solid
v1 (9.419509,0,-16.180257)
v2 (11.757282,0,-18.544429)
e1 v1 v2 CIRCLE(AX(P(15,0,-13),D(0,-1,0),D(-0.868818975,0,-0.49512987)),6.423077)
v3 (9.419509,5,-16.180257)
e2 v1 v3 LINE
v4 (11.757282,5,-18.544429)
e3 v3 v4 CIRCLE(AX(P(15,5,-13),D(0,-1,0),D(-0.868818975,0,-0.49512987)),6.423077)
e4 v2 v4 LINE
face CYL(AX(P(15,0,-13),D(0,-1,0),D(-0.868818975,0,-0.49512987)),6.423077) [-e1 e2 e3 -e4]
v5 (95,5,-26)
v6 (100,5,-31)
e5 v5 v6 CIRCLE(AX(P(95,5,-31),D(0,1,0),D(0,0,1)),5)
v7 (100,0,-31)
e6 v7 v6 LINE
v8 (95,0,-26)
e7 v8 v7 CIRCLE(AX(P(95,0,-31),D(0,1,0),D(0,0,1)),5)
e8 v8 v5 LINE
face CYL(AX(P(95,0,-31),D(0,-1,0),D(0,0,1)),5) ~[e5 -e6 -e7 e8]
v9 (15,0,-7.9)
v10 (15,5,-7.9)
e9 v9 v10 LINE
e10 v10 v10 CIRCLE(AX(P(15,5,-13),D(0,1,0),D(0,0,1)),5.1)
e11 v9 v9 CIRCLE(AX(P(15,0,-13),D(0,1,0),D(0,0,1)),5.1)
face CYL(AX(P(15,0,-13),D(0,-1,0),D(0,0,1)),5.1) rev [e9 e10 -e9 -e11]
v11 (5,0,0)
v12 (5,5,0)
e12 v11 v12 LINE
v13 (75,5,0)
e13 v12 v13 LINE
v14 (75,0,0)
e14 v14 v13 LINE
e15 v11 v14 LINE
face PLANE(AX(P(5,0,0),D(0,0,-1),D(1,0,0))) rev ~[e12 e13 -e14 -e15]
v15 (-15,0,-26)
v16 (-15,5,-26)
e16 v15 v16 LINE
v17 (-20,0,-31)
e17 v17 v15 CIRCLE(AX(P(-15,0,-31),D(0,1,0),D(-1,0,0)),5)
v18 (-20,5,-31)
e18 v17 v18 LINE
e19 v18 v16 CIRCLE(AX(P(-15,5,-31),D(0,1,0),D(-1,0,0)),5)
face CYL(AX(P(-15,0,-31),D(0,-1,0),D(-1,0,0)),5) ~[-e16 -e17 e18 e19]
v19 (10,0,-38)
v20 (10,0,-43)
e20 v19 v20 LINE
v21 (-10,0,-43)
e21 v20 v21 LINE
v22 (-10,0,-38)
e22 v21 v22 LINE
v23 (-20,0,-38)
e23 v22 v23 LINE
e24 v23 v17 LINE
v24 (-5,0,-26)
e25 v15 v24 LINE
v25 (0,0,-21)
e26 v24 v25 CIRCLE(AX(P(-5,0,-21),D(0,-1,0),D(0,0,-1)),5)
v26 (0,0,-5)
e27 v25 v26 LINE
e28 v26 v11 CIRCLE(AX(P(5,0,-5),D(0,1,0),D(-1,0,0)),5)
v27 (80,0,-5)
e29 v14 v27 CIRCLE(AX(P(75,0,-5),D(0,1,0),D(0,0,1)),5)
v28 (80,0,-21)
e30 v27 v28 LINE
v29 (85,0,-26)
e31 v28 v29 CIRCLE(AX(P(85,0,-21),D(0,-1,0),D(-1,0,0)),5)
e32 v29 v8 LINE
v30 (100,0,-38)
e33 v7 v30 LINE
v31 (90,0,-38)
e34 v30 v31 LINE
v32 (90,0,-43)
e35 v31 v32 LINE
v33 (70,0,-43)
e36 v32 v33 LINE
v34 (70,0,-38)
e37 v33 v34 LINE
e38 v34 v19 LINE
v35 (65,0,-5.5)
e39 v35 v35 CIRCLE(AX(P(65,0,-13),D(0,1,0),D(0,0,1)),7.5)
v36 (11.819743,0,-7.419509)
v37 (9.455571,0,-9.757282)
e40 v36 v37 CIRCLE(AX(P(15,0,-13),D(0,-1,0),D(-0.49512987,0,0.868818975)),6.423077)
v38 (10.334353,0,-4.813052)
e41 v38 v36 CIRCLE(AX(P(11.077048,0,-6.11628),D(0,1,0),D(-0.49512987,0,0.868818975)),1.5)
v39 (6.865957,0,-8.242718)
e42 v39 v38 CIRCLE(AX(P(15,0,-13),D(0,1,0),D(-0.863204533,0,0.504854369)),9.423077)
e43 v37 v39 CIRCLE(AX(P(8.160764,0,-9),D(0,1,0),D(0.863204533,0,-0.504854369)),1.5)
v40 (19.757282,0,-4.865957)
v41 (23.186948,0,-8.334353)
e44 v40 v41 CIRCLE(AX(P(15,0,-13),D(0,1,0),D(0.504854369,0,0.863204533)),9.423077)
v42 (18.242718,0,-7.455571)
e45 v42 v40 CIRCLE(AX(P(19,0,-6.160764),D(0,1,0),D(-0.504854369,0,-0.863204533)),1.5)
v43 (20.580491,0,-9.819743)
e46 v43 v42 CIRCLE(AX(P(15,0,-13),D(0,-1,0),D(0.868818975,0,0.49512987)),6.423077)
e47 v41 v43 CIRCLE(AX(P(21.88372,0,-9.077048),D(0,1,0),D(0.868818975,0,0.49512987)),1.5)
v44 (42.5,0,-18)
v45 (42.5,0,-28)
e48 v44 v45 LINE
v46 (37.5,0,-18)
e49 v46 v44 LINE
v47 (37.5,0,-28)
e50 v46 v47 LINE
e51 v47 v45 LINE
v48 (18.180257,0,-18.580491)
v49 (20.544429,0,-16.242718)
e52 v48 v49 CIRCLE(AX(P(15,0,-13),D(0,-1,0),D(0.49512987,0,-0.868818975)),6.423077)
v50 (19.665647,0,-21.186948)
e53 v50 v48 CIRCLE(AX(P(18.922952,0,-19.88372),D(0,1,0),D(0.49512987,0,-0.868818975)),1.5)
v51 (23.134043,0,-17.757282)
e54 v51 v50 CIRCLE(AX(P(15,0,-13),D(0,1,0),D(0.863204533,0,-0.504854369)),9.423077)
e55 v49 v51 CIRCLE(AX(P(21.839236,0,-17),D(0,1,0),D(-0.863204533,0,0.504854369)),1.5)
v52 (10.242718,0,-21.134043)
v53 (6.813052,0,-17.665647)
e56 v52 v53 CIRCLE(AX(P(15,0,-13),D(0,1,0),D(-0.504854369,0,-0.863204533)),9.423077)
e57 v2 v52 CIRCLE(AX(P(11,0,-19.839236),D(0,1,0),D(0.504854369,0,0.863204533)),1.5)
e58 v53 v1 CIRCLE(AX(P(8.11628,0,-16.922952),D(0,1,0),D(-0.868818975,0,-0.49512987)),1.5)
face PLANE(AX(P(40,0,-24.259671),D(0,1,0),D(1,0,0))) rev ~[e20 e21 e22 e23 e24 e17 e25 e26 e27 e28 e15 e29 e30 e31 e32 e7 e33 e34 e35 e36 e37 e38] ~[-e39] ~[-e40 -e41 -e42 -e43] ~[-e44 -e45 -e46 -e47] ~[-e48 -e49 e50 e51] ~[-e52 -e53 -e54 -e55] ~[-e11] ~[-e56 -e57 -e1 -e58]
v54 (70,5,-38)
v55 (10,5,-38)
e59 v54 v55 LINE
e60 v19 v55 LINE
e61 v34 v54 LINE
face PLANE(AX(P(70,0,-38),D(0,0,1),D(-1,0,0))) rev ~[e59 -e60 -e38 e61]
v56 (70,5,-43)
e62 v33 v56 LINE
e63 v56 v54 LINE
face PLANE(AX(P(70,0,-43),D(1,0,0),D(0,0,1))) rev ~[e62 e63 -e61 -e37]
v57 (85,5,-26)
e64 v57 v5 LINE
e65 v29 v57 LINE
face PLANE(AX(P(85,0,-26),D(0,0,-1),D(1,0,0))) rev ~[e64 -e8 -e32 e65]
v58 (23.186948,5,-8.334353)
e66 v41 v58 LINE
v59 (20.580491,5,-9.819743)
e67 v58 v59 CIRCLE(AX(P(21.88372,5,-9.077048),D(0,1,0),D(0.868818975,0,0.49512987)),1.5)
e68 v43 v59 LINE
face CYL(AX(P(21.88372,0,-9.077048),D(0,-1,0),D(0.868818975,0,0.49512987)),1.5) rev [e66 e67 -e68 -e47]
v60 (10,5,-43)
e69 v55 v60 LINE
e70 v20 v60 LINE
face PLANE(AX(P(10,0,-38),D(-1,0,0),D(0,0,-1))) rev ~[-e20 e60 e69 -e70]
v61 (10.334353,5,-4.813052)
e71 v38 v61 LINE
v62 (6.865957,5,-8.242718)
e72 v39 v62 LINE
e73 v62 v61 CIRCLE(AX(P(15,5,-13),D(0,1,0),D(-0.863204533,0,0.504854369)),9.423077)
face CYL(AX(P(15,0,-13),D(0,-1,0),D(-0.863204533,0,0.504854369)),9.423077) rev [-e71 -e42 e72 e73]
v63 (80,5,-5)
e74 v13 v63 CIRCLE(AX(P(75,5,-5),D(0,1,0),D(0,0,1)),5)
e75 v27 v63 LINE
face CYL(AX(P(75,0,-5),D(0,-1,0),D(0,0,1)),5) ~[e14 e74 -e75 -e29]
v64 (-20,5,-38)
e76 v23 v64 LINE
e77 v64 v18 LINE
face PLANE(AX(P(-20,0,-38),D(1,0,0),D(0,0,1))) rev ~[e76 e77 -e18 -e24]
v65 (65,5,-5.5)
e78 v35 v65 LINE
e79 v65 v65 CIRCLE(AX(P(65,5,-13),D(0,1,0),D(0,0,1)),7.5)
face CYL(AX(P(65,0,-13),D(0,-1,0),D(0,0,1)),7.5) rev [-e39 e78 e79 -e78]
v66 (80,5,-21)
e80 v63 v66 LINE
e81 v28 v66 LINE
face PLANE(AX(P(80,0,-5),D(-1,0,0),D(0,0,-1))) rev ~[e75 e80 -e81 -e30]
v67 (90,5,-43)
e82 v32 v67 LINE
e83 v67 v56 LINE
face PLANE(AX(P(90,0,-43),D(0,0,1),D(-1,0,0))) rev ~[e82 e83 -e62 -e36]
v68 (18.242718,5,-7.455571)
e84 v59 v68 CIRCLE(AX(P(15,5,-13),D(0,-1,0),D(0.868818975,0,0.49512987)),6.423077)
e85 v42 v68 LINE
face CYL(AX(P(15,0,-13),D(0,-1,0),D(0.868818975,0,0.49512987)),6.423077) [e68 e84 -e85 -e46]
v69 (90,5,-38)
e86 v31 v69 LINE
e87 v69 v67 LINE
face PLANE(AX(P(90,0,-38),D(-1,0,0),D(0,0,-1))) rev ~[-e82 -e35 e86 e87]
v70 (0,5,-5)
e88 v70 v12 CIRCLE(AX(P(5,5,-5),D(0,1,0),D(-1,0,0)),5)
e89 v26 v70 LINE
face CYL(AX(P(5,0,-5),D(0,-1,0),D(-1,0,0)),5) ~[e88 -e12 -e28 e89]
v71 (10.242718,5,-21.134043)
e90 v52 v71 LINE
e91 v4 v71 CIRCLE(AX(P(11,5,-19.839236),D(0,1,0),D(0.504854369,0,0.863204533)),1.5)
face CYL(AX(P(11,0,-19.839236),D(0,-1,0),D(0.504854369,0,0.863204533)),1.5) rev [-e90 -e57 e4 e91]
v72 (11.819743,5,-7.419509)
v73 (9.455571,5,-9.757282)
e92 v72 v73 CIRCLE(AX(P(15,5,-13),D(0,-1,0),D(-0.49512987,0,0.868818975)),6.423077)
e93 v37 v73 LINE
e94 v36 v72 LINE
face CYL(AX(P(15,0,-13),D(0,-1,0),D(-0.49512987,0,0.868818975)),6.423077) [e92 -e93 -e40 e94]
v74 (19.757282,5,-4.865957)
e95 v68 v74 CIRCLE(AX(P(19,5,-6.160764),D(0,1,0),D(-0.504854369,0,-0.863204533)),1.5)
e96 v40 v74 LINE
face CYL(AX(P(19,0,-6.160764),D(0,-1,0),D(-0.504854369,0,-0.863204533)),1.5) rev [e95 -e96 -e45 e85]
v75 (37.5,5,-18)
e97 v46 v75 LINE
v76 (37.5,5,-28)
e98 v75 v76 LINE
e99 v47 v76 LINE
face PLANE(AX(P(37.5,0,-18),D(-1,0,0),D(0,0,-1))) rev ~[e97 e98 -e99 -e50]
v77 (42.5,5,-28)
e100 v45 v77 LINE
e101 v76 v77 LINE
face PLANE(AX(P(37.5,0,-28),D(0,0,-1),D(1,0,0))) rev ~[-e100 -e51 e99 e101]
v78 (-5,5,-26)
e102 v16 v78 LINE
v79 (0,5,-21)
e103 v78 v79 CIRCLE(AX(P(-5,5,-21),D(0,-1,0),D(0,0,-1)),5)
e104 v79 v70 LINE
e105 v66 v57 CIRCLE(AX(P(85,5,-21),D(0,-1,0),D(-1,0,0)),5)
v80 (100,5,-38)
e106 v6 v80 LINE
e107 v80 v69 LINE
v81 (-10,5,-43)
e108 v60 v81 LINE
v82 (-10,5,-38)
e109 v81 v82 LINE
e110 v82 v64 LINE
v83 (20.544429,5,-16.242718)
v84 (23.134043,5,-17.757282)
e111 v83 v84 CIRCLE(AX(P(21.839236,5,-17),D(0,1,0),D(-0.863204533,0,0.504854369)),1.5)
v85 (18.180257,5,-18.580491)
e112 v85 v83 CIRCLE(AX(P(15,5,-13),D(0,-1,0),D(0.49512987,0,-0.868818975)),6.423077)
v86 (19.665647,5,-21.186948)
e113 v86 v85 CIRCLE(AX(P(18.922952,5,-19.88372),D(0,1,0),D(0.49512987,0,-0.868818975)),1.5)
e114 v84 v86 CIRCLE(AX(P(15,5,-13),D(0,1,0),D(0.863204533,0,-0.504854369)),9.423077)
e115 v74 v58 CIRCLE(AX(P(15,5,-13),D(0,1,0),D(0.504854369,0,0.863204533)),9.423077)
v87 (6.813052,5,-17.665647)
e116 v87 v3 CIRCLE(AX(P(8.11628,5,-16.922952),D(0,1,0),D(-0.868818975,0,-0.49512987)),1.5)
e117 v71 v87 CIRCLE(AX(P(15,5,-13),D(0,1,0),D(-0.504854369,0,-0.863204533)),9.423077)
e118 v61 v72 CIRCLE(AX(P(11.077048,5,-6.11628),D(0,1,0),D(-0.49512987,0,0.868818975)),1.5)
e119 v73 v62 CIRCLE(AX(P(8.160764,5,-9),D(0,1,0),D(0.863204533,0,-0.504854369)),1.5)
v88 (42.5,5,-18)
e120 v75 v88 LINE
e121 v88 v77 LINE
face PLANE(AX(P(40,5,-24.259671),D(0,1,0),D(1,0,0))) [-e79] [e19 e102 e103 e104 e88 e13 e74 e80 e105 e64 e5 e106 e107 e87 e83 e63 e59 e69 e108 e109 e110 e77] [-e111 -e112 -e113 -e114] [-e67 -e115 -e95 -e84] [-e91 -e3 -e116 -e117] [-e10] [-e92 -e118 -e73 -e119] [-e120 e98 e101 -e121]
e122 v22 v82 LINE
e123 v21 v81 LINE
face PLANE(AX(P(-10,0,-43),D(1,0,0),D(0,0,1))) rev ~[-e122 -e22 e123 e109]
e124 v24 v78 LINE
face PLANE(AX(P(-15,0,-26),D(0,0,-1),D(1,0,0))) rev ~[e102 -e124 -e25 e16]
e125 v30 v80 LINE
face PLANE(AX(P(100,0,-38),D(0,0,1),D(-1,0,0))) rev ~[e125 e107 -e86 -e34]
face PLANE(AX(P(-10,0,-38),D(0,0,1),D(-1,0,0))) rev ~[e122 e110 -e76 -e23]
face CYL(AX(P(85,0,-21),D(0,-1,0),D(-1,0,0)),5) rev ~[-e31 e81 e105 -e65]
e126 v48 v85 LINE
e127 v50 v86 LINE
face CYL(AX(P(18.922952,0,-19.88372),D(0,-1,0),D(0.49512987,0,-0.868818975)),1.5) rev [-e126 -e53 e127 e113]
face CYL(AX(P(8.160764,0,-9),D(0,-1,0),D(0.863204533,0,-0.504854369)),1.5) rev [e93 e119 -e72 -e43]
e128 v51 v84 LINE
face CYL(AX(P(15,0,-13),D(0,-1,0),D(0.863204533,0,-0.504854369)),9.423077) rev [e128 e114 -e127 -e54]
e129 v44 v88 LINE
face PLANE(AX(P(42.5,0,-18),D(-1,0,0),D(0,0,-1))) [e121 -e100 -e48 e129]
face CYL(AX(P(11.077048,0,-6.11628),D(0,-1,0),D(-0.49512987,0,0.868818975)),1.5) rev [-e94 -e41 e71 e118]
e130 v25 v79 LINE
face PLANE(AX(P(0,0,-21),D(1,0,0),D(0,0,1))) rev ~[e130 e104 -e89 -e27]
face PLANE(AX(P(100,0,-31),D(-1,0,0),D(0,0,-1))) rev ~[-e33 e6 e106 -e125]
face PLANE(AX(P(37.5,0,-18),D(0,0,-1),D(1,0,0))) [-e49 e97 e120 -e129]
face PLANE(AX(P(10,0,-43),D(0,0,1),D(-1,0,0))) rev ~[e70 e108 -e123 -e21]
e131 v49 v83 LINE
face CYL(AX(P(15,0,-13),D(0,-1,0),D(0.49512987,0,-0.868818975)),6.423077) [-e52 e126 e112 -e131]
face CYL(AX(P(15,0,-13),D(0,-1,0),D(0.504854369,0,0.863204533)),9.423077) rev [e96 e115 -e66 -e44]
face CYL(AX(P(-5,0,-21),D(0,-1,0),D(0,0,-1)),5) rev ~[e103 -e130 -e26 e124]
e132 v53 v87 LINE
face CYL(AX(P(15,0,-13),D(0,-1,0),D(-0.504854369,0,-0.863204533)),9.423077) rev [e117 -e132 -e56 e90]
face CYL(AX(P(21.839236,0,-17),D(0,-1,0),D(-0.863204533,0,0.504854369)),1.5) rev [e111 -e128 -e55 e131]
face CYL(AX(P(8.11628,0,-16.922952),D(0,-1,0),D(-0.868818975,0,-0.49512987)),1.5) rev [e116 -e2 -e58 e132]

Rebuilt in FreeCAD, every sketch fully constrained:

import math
import FreeCAD as App
import Part
import Sketcher
Q = App.Units.Quantity


def add_polygon(sketch, points):
    """Adds a closed chain of lines whose ends are joined by coincident constraints."""
    first, n = sketch.GeometryCount, len(points)
    for a, b in zip(points, points[1:] + points[:1]):
        sketch.addGeometry(Part.LineSegment(App.Vector(*a, 0), App.Vector(*b, 0)), False)
    for i in range(n):
        sketch.addConstraint(Sketcher.Constraint("Coincident", first + i, 2, first + (i + 1) % n, 1))

doc = App.newDocument("Part")
body = doc.addObject("PartDesign::Body", "Body")

# Sketch on XZ plane
sketch1 = body.newObject("Sketcher::SketchObject", "Sketch")
sketch1.AttachmentSupport = (doc.getObject("XZ_Plane"), [""])
sketch1.MapMode = "FlatFace"
sketch1.addGeometry(Part.LineSegment(App.Vector(5, 0, 0), App.Vector(75, 0, 0)), False)  # 0
sketch1.addGeometry(Part.ArcOfCircle(Part.Circle(App.Vector(75, -5, 0), App.Vector(0, 0, 1), 5), math.radians(0), math.radians(90)), False)  # 1
sketch1.addGeometry(Part.LineSegment(App.Vector(80, -5, 0), App.Vector(80, -21, 0)), False)  # 2
sketch1.addGeometry(Part.ArcOfCircle(Part.Circle(App.Vector(85, -21, 0), App.Vector(0, 0, 1), 5), math.radians(180), math.radians(270)), False)  # 3
sketch1.addGeometry(Part.LineSegment(App.Vector(85, -26, 0), App.Vector(95, -26, 0)), False)  # 4
sketch1.addGeometry(Part.ArcOfCircle(Part.Circle(App.Vector(95, -31, 0), App.Vector(0, 0, 1), 5), math.radians(0), math.radians(90)), False)  # 5
sketch1.addGeometry(Part.LineSegment(App.Vector(100, -31, 0), App.Vector(100, -38, 0)), False)  # 6
sketch1.addGeometry(Part.LineSegment(App.Vector(100, -38, 0), App.Vector(90, -38, 0)), False)  # 7
sketch1.addGeometry(Part.LineSegment(App.Vector(90, -38, 0), App.Vector(90, -43, 0)), False)  # 8
sketch1.addGeometry(Part.LineSegment(App.Vector(90, -43, 0), App.Vector(70, -43, 0)), False)  # 9
sketch1.addGeometry(Part.LineSegment(App.Vector(70, -43, 0), App.Vector(70, -38, 0)), False)  # 10
sketch1.addGeometry(Part.LineSegment(App.Vector(70, -38, 0), App.Vector(10, -38, 0)), False)  # 11
sketch1.addGeometry(Part.LineSegment(App.Vector(10, -38, 0), App.Vector(10, -43, 0)), False)  # 12
sketch1.addGeometry(Part.LineSegment(App.Vector(10, -43, 0), App.Vector(-10, -43, 0)), False)  # 13
sketch1.addGeometry(Part.LineSegment(App.Vector(-10, -43, 0), App.Vector(-10, -38, 0)), False)  # 14
sketch1.addGeometry(Part.LineSegment(App.Vector(-10, -38, 0), App.Vector(-20, -38, 0)), False)  # 15
sketch1.addGeometry(Part.LineSegment(App.Vector(-20, -38, 0), App.Vector(-20, -31, 0)), False)  # 16
sketch1.addGeometry(Part.ArcOfCircle(Part.Circle(App.Vector(-15, -31, 0), App.Vector(0, 0, 1), 5), math.radians(90), math.radians(180)), False)  # 17
sketch1.addGeometry(Part.LineSegment(App.Vector(-15, -26, 0), App.Vector(-5, -26, 0)), False)  # 18
sketch1.addGeometry(Part.ArcOfCircle(Part.Circle(App.Vector(-5, -21, 0), App.Vector(0, 0, 1), 5), math.radians(-90), math.radians(0)), False)  # 19
sketch1.addGeometry(Part.LineSegment(App.Vector(0, -21, 0), App.Vector(0, -5, 0)), False)  # 20
sketch1.addGeometry(Part.ArcOfCircle(Part.Circle(App.Vector(5, -5, 0), App.Vector(0, 0, 1), 5), math.radians(90), math.radians(180)), False)  # 21
sketch1.addGeometry(Part.ArcOfCircle(Part.Circle(App.Vector(15, -13, 0), App.Vector(0, 0, 1), 9.4), math.radians(120), math.radians(150)), False)  # 22
sketch1.addGeometry(Part.ArcOfCircle(Part.Circle(App.Vector(8.2, -9, 0), App.Vector(0, 0, 1), 1.5), math.radians(150), math.radians(330)), False)  # 23
sketch1.addGeometry(Part.ArcOfCircle(Part.Circle(App.Vector(15, -13, 0), App.Vector(0, 0, 1), 6.4), math.radians(120), math.radians(150)), False)  # 24
sketch1.addGeometry(Part.ArcOfCircle(Part.Circle(App.Vector(11.1, -6.1, 0), App.Vector(0, 0, 1), 1.5), math.radians(-60), math.radians(120)), False)  # 25
sketch1.addGeometry(Part.ArcOfCircle(Part.Circle(App.Vector(15, -13, 0), App.Vector(0, 0, 1), 9.4), math.radians(30), math.radians(60)), False)  # 26
sketch1.addGeometry(Part.ArcOfCircle(Part.Circle(App.Vector(19, -6.2, 0), App.Vector(0, 0, 1), 1.5), math.radians(60), math.radians(240)), False)  # 27
sketch1.addGeometry(Part.ArcOfCircle(Part.Circle(App.Vector(15, -13, 0), App.Vector(0, 0, 1), 6.4), math.radians(30), math.radians(60)), False)  # 28
sketch1.addGeometry(Part.ArcOfCircle(Part.Circle(App.Vector(21.9, -9.1, 0), App.Vector(0, 0, 1), 1.5), math.radians(-150), math.radians(30)), False)  # 29
sketch1.addGeometry(Part.Circle(App.Vector(15, -13, 0), App.Vector(0, 0, 1), 5.1), False)  # 30
sketch1.addGeometry(Part.Circle(App.Vector(65, -13, 0), App.Vector(0, 0, 1), 7.5), False)  # 31
sketch1.addGeometry(Part.ArcOfCircle(Part.Circle(App.Vector(15, -13, 0), App.Vector(0, 0, 1), 9.4), math.radians(-150), math.radians(-120)), False)  # 32
sketch1.addGeometry(Part.ArcOfCircle(Part.Circle(App.Vector(11, -19.8, 0), App.Vector(0, 0, 1), 1.5), math.radians(-120), math.radians(60)), False)  # 33
sketch1.addGeometry(Part.ArcOfCircle(Part.Circle(App.Vector(15, -13, 0), App.Vector(0, 0, 1), 6.4), math.radians(-150), math.radians(-120)), False)  # 34
sketch1.addGeometry(Part.ArcOfCircle(Part.Circle(App.Vector(8.1, -16.9, 0), App.Vector(0, 0, 1), 1.5), math.radians(30), math.radians(210)), False)  # 35
sketch1.addGeometry(Part.ArcOfCircle(Part.Circle(App.Vector(15, -13, 0), App.Vector(0, 0, 1), 9.4), math.radians(-60), math.radians(-30)), False)  # 36
sketch1.addGeometry(Part.ArcOfCircle(Part.Circle(App.Vector(21.8, -17, 0), App.Vector(0, 0, 1), 1.5), math.radians(-30), math.radians(150)), False)  # 37
sketch1.addGeometry(Part.ArcOfCircle(Part.Circle(App.Vector(15, -13, 0), App.Vector(0, 0, 1), 6.4), math.radians(-60), math.radians(-30)), False)  # 38
sketch1.addGeometry(Part.ArcOfCircle(Part.Circle(App.Vector(18.9, -19.9, 0), App.Vector(0, 0, 1), 1.5), math.radians(120), math.radians(300)), False)  # 39
add_polygon(sketch1, [(42.5, -18), (37.5, -18), (37.5, -28), (42.5, -28)])  # lines 40-43
sketch1.addConstraint([
    Sketcher.Constraint("Tangent", 0, 2, 1, 2),
    Sketcher.Constraint("Tangent", 1, 1, 2, 1),
    Sketcher.Constraint("Tangent", 2, 2, 3, 1),
    Sketcher.Constraint("Tangent", 3, 2, 4, 1),
    Sketcher.Constraint("Tangent", 4, 2, 5, 2),
    Sketcher.Constraint("Tangent", 5, 1, 6, 1),
    Sketcher.Constraint("Coincident", 6, 2, 7, 1),
    Sketcher.Constraint("Coincident", 7, 2, 8, 1),
    Sketcher.Constraint("Coincident", 8, 2, 9, 1),
    Sketcher.Constraint("Coincident", 9, 2, 10, 1),
    Sketcher.Constraint("Coincident", 10, 2, 11, 1),
    Sketcher.Constraint("Coincident", 11, 2, 12, 1),
    Sketcher.Constraint("Coincident", 12, 2, 13, 1),
    Sketcher.Constraint("Coincident", 13, 2, 14, 1),
    Sketcher.Constraint("Coincident", 14, 2, 15, 1),
    Sketcher.Constraint("Coincident", 15, 2, 16, 1),
    Sketcher.Constraint("Tangent", 16, 2, 17, 2),
    Sketcher.Constraint("Tangent", 17, 1, 18, 1),
    Sketcher.Constraint("Tangent", 18, 2, 19, 1),
    Sketcher.Constraint("Tangent", 19, 2, 20, 1),
    Sketcher.Constraint("Tangent", 20, 2, 21, 2),
    Sketcher.Constraint("Tangent", 21, 1, 0, 1),
    Sketcher.Constraint("Tangent", 22, 2, 23, 1),
    Sketcher.Constraint("Tangent", 23, 2, 24, 2),
    Sketcher.Constraint("Tangent", 24, 1, 25, 1),
    Sketcher.Constraint("Tangent", 25, 2, 22, 1),
    Sketcher.Constraint("Tangent", 26, 2, 27, 1),
    Sketcher.Constraint("Tangent", 27, 2, 28, 2),
    Sketcher.Constraint("Tangent", 28, 1, 29, 1),
    Sketcher.Constraint("Tangent", 29, 2, 26, 1),
    Sketcher.Constraint("Tangent", 32, 2, 33, 1),
    Sketcher.Constraint("Tangent", 33, 2, 34, 2),
    Sketcher.Constraint("Tangent", 34, 1, 35, 1),
    Sketcher.Constraint("Tangent", 35, 2, 32, 1),
    Sketcher.Constraint("Tangent", 36, 2, 37, 1),
    Sketcher.Constraint("Tangent", 37, 2, 38, 2),
    Sketcher.Constraint("Tangent", 38, 1, 39, 1),
    Sketcher.Constraint("Tangent", 39, 2, 36, 1),
    Sketcher.Constraint("Horizontal", 0),
    Sketcher.Constraint("Vertical", 2),
    Sketcher.Constraint("Horizontal", 4),
    Sketcher.Constraint("Vertical", 6),
    Sketcher.Constraint("Horizontal", 7),
    Sketcher.Constraint("Vertical", 8),
    Sketcher.Constraint("Horizontal", 9),
    Sketcher.Constraint("Vertical", 10),
    Sketcher.Constraint("Horizontal", 11),
    Sketcher.Constraint("Vertical", 12),
    Sketcher.Constraint("Horizontal", 13),
    Sketcher.Constraint("Vertical", 14),
    Sketcher.Constraint("Horizontal", 15),
    Sketcher.Constraint("Vertical", 16),
    Sketcher.Constraint("Horizontal", 18),
    Sketcher.Constraint("Vertical", 20),
    Sketcher.Constraint("Horizontal", 40),
    Sketcher.Constraint("Vertical", 41),
    Sketcher.Constraint("Horizontal", 42),
    Sketcher.Constraint("Vertical", 43),
    Sketcher.Constraint("Coincident", 24, 3, 22, 3),
    Sketcher.Constraint("Coincident", 26, 3, 22, 3),
    Sketcher.Constraint("Coincident", 28, 3, 22, 3),
    Sketcher.Constraint("Coincident", 30, 3, 22, 3),
    Sketcher.Constraint("Coincident", 32, 3, 22, 3),
    Sketcher.Constraint("Coincident", 34, 3, 22, 3),
    Sketcher.Constraint("Coincident", 36, 3, 22, 3),
    Sketcher.Constraint("Coincident", 38, 3, 22, 3),
    Sketcher.Constraint("Equal", 1, 3),
    Sketcher.Constraint("Equal", 3, 5),
    Sketcher.Constraint("Equal", 5, 17),
    Sketcher.Constraint("Equal", 17, 19),
    Sketcher.Constraint("Equal", 19, 21),
    Sketcher.Constraint("Equal", 22, 26),
    Sketcher.Constraint("Equal", 25, 27),
    Sketcher.Constraint("Equal", 26, 32),
    Sketcher.Constraint("Equal", 29, 33),
    Sketcher.Constraint("Equal", 32, 36),
    Sketcher.Constraint("Equal", 35, 37),
    Sketcher.Constraint("Symmetric", 11, 2, 14, 2, -2),
    Sketcher.Constraint("PointOnObject", 0, 2, -1),
    Sketcher.Constraint("PointOnObject", 19, 2, -2),
    Sketcher.Constraint("Horizontal", 5, 3, 17, 3),
    Sketcher.Constraint("Horizontal", 30, 3, 31, 3),
    Sketcher.Constraint("Horizontal", 7, 2, 10, 2),
    Sketcher.Constraint("Horizontal", 9, 2, 12, 2),
    Sketcher.Constraint("Equal", 4, 7),
    Sketcher.Constraint("Equal", 9, 13),
    Sketcher.Constraint("Equal", 7, 15),
    Sketcher.Constraint("Equal", 15, 18),
    Sketcher.Constraint("Equal", 42, 8),
    Sketcher.Constraint("Equal", 18, 41),
    Sketcher.Constraint("Diameter", 31, Q("15 mm")),
    Sketcher.Constraint("Radius", 1, Q("5 mm")),
    Sketcher.Constraint("Diameter", 30, Q("10.2 mm")),
    Sketcher.Constraint("Radius", 23, Q("1.5 mm")),
    Sketcher.Constraint("DistanceX", 0, 1, 0, 2, Q("70 mm")),
    Sketcher.Constraint("DistanceX", 4, 1, 4, 2, Q("10 mm")),
    Sketcher.Constraint("DistanceX", 40, 2, 40, 1, Q("5 mm")),
    Sketcher.Constraint("DistanceY", 2, 2, 2, 1, Q("16 mm")),
    Sketcher.Constraint("DistanceY", 6, 2, 6, 1, Q("7 mm")),
    Sketcher.Constraint("DistanceX", -1, 1, 22, 3, Q("15 mm")),
    Sketcher.Constraint("DistanceY", 22, 3, -1, 1, Q("13 mm")),
    Sketcher.Constraint("DistanceY", 23, 3, -1, 1, Q("9 mm")),
    Sketcher.Constraint("DistanceX", -1, 1, 27, 3, Q("19 mm")),
    Sketcher.Constraint("DistanceX", -1, 1, 31, 3, Q("65 mm")),
    Sketcher.Constraint("DistanceX", -1, 1, 33, 3, Q("11 mm")),
    Sketcher.Constraint("DistanceY", 37, 3, -1, 1, Q("17 mm")),
    Sketcher.Constraint("DistanceY", 40, 2, -1, 1, Q("18 mm")),
    Sketcher.Constraint("DistanceX", -1, 1, 40, 2, Q("37.5 mm")),
    Sketcher.Constraint("Radius", 22, Q("9.423077 mm")),
    Sketcher.Constraint("DistanceY", 25, 3, -1, 1, Q("6.11628 mm")),
    Sketcher.Constraint("DistanceX", -1, 1, 29, 3, Q("21.88372 mm")),
    Sketcher.Constraint("DistanceX", -1, 1, 35, 3, Q("8.11628 mm")),
    Sketcher.Constraint("DistanceY", 39, 3, -1, 1, Q("19.88372 mm")),
])
pad1 = body.newObject("PartDesign::Pad", "Pad")
pad1.Profile = sketch1
pad1.Length = 5
pad1.Reversed = True

doc.recompute()
